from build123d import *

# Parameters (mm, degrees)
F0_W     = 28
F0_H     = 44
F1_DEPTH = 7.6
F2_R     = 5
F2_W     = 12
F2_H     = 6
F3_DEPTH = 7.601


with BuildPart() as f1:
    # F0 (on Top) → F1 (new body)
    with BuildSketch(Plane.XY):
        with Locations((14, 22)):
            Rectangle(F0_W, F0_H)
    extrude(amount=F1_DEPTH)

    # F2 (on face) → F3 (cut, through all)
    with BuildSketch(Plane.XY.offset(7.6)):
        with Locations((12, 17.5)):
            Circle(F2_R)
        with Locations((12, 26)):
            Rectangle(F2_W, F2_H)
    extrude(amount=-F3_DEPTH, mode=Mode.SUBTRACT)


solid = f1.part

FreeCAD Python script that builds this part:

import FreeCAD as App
import Part
import Sketcher

V = App.Vector
Q = App.Units.Quantity

doc = App.newDocument("Part")
params = doc.addObject("Spreadsheet::Sheet", "Params")
for row, (alias, value) in enumerate([
    ("sketch1_width", "28 mm"),
    ("sketch1_height", "44 mm"),
    ("pad1_length", "7.6 mm"),
    ("sketch2_diameter", "10 mm"),
    ("sketch2_width", "12 mm"),
    ("sketch2_height", "6 mm"),
], start=1):
    params.set(f"A{row}", alias)
    params.set(f"B{row}", "=" + value)
    params.setAlias(f"B{row}", alias)

body = doc.addObject("PartDesign::Body", "Body")

sketch1 = doc.addObject("Sketcher::SketchObject", "Sketch")
body.addObject(sketch1)
sketch1.AttachmentSupport = (doc.XY_Plane, [""])
sketch1.MapMode = "FlatFace"
sketch1.addGeometry([
    Part.LineSegment(V(0, 44, 0), V(0, 0, 0)),
    Part.LineSegment(V(0, 0, 0), V(28, 0, 0)),
    Part.LineSegment(V(28, 0, 0), V(28, 44, 0)),
    Part.LineSegment(V(28, 44, 0), V(0, 44, 0)),
], False)
sketch1.addConstraint([
    Sketcher.Constraint("Coincident", 0, 2, 1, 1),
    Sketcher.Constraint("Coincident", 1, 2, 2, 1),
    Sketcher.Constraint("Coincident", 2, 2, 3, 1),
    Sketcher.Constraint("Coincident", 3, 2, 0, 1),
    Sketcher.Constraint("Vertical", 0),
    Sketcher.Constraint("Horizontal", 1),
    Sketcher.Constraint("Vertical", 2),
    Sketcher.Constraint("Horizontal", 3),
    Sketcher.Constraint("Coincident", 0, 2, -1, 1),
    Sketcher.Constraint("DistanceX", 1, 1, 1, 2, Q("28 mm")),
    Sketcher.Constraint("DistanceY", 0, 2, 0, 1, Q("44 mm")),
])
sketch1.setExpression("Constraints[9]", "Params.sketch1_width")
sketch1.setExpression("Constraints[10]", "Params.sketch1_height")
pad1 = doc.addObject("PartDesign::Pad", "Pad")
body.addObject(pad1)
pad1.Profile = sketch1
pad1.setExpression("Length", "Params.pad1_length")

sketch2 = doc.addObject("Sketcher::SketchObject", "Sketch001")
body.addObject(sketch2)
sketch2.AttachmentSupport = (doc.XY_Plane, [""])
sketch2.MapMode = "FlatFace"
sketch2.AttachmentOffset = App.Placement(V(0, 0, 7.6), App.Rotation())
sketch2.addGeometry([
    Part.Circle(V(12, 18, 0), V(0, 0, 1), 5),
    Part.LineSegment(V(6, 29, 0), V(6, 23, 0)),
    Part.LineSegment(V(6, 23, 0), V(18, 23, 0)),
    Part.LineSegment(V(18, 23, 0), V(18, 29, 0)),
    Part.LineSegment(V(18, 29, 0), V(6, 29, 0)),
], False)
sketch2.addConstraint([
    Sketcher.Constraint("Coincident", 1, 2, 2, 1),
    Sketcher.Constraint("Coincident", 2, 2, 3, 1),
    Sketcher.Constraint("Coincident", 3, 2, 4, 1),
    Sketcher.Constraint("Coincident", 4, 2, 1, 1),
    Sketcher.Constraint("Vertical", 1),
    Sketcher.Constraint("Horizontal", 2),
    Sketcher.Constraint("Vertical", 3),
    Sketcher.Constraint("Horizontal", 4),
    Sketcher.Constraint("Diameter", 0, Q("10 mm")),
    Sketcher.Constraint("DistanceX", 2, 1, 2, 2, Q("12 mm")),
    Sketcher.Constraint("DistanceY", 1, 2, 1, 1, Q("6 mm")),
    Sketcher.Constraint("DistanceX", -1, 1, 0, 3, Q("12 mm")),
    Sketcher.Constraint("DistanceX", -1, 1, 1, 2, Q("6 mm")),
    Sketcher.Constraint("DistanceY", -1, 1, 1, 2, Q("23 mm")),
    Sketcher.Constraint("DistanceY", -1, 1, 0, 3, Q("17.5 mm")),
])
sketch2.setExpression("Constraints[8]", "Params.sketch2_diameter")
sketch2.setExpression("Constraints[9]", "Params.sketch2_width")
sketch2.setExpression("Constraints[10]", "Params.sketch2_height")
pocket1 = doc.addObject("PartDesign::Pocket", "Pocket")
body.addObject(pocket1)
pocket1.Profile = sketch2
pocket1.Type = "ThroughAll"

doc.recompute()
